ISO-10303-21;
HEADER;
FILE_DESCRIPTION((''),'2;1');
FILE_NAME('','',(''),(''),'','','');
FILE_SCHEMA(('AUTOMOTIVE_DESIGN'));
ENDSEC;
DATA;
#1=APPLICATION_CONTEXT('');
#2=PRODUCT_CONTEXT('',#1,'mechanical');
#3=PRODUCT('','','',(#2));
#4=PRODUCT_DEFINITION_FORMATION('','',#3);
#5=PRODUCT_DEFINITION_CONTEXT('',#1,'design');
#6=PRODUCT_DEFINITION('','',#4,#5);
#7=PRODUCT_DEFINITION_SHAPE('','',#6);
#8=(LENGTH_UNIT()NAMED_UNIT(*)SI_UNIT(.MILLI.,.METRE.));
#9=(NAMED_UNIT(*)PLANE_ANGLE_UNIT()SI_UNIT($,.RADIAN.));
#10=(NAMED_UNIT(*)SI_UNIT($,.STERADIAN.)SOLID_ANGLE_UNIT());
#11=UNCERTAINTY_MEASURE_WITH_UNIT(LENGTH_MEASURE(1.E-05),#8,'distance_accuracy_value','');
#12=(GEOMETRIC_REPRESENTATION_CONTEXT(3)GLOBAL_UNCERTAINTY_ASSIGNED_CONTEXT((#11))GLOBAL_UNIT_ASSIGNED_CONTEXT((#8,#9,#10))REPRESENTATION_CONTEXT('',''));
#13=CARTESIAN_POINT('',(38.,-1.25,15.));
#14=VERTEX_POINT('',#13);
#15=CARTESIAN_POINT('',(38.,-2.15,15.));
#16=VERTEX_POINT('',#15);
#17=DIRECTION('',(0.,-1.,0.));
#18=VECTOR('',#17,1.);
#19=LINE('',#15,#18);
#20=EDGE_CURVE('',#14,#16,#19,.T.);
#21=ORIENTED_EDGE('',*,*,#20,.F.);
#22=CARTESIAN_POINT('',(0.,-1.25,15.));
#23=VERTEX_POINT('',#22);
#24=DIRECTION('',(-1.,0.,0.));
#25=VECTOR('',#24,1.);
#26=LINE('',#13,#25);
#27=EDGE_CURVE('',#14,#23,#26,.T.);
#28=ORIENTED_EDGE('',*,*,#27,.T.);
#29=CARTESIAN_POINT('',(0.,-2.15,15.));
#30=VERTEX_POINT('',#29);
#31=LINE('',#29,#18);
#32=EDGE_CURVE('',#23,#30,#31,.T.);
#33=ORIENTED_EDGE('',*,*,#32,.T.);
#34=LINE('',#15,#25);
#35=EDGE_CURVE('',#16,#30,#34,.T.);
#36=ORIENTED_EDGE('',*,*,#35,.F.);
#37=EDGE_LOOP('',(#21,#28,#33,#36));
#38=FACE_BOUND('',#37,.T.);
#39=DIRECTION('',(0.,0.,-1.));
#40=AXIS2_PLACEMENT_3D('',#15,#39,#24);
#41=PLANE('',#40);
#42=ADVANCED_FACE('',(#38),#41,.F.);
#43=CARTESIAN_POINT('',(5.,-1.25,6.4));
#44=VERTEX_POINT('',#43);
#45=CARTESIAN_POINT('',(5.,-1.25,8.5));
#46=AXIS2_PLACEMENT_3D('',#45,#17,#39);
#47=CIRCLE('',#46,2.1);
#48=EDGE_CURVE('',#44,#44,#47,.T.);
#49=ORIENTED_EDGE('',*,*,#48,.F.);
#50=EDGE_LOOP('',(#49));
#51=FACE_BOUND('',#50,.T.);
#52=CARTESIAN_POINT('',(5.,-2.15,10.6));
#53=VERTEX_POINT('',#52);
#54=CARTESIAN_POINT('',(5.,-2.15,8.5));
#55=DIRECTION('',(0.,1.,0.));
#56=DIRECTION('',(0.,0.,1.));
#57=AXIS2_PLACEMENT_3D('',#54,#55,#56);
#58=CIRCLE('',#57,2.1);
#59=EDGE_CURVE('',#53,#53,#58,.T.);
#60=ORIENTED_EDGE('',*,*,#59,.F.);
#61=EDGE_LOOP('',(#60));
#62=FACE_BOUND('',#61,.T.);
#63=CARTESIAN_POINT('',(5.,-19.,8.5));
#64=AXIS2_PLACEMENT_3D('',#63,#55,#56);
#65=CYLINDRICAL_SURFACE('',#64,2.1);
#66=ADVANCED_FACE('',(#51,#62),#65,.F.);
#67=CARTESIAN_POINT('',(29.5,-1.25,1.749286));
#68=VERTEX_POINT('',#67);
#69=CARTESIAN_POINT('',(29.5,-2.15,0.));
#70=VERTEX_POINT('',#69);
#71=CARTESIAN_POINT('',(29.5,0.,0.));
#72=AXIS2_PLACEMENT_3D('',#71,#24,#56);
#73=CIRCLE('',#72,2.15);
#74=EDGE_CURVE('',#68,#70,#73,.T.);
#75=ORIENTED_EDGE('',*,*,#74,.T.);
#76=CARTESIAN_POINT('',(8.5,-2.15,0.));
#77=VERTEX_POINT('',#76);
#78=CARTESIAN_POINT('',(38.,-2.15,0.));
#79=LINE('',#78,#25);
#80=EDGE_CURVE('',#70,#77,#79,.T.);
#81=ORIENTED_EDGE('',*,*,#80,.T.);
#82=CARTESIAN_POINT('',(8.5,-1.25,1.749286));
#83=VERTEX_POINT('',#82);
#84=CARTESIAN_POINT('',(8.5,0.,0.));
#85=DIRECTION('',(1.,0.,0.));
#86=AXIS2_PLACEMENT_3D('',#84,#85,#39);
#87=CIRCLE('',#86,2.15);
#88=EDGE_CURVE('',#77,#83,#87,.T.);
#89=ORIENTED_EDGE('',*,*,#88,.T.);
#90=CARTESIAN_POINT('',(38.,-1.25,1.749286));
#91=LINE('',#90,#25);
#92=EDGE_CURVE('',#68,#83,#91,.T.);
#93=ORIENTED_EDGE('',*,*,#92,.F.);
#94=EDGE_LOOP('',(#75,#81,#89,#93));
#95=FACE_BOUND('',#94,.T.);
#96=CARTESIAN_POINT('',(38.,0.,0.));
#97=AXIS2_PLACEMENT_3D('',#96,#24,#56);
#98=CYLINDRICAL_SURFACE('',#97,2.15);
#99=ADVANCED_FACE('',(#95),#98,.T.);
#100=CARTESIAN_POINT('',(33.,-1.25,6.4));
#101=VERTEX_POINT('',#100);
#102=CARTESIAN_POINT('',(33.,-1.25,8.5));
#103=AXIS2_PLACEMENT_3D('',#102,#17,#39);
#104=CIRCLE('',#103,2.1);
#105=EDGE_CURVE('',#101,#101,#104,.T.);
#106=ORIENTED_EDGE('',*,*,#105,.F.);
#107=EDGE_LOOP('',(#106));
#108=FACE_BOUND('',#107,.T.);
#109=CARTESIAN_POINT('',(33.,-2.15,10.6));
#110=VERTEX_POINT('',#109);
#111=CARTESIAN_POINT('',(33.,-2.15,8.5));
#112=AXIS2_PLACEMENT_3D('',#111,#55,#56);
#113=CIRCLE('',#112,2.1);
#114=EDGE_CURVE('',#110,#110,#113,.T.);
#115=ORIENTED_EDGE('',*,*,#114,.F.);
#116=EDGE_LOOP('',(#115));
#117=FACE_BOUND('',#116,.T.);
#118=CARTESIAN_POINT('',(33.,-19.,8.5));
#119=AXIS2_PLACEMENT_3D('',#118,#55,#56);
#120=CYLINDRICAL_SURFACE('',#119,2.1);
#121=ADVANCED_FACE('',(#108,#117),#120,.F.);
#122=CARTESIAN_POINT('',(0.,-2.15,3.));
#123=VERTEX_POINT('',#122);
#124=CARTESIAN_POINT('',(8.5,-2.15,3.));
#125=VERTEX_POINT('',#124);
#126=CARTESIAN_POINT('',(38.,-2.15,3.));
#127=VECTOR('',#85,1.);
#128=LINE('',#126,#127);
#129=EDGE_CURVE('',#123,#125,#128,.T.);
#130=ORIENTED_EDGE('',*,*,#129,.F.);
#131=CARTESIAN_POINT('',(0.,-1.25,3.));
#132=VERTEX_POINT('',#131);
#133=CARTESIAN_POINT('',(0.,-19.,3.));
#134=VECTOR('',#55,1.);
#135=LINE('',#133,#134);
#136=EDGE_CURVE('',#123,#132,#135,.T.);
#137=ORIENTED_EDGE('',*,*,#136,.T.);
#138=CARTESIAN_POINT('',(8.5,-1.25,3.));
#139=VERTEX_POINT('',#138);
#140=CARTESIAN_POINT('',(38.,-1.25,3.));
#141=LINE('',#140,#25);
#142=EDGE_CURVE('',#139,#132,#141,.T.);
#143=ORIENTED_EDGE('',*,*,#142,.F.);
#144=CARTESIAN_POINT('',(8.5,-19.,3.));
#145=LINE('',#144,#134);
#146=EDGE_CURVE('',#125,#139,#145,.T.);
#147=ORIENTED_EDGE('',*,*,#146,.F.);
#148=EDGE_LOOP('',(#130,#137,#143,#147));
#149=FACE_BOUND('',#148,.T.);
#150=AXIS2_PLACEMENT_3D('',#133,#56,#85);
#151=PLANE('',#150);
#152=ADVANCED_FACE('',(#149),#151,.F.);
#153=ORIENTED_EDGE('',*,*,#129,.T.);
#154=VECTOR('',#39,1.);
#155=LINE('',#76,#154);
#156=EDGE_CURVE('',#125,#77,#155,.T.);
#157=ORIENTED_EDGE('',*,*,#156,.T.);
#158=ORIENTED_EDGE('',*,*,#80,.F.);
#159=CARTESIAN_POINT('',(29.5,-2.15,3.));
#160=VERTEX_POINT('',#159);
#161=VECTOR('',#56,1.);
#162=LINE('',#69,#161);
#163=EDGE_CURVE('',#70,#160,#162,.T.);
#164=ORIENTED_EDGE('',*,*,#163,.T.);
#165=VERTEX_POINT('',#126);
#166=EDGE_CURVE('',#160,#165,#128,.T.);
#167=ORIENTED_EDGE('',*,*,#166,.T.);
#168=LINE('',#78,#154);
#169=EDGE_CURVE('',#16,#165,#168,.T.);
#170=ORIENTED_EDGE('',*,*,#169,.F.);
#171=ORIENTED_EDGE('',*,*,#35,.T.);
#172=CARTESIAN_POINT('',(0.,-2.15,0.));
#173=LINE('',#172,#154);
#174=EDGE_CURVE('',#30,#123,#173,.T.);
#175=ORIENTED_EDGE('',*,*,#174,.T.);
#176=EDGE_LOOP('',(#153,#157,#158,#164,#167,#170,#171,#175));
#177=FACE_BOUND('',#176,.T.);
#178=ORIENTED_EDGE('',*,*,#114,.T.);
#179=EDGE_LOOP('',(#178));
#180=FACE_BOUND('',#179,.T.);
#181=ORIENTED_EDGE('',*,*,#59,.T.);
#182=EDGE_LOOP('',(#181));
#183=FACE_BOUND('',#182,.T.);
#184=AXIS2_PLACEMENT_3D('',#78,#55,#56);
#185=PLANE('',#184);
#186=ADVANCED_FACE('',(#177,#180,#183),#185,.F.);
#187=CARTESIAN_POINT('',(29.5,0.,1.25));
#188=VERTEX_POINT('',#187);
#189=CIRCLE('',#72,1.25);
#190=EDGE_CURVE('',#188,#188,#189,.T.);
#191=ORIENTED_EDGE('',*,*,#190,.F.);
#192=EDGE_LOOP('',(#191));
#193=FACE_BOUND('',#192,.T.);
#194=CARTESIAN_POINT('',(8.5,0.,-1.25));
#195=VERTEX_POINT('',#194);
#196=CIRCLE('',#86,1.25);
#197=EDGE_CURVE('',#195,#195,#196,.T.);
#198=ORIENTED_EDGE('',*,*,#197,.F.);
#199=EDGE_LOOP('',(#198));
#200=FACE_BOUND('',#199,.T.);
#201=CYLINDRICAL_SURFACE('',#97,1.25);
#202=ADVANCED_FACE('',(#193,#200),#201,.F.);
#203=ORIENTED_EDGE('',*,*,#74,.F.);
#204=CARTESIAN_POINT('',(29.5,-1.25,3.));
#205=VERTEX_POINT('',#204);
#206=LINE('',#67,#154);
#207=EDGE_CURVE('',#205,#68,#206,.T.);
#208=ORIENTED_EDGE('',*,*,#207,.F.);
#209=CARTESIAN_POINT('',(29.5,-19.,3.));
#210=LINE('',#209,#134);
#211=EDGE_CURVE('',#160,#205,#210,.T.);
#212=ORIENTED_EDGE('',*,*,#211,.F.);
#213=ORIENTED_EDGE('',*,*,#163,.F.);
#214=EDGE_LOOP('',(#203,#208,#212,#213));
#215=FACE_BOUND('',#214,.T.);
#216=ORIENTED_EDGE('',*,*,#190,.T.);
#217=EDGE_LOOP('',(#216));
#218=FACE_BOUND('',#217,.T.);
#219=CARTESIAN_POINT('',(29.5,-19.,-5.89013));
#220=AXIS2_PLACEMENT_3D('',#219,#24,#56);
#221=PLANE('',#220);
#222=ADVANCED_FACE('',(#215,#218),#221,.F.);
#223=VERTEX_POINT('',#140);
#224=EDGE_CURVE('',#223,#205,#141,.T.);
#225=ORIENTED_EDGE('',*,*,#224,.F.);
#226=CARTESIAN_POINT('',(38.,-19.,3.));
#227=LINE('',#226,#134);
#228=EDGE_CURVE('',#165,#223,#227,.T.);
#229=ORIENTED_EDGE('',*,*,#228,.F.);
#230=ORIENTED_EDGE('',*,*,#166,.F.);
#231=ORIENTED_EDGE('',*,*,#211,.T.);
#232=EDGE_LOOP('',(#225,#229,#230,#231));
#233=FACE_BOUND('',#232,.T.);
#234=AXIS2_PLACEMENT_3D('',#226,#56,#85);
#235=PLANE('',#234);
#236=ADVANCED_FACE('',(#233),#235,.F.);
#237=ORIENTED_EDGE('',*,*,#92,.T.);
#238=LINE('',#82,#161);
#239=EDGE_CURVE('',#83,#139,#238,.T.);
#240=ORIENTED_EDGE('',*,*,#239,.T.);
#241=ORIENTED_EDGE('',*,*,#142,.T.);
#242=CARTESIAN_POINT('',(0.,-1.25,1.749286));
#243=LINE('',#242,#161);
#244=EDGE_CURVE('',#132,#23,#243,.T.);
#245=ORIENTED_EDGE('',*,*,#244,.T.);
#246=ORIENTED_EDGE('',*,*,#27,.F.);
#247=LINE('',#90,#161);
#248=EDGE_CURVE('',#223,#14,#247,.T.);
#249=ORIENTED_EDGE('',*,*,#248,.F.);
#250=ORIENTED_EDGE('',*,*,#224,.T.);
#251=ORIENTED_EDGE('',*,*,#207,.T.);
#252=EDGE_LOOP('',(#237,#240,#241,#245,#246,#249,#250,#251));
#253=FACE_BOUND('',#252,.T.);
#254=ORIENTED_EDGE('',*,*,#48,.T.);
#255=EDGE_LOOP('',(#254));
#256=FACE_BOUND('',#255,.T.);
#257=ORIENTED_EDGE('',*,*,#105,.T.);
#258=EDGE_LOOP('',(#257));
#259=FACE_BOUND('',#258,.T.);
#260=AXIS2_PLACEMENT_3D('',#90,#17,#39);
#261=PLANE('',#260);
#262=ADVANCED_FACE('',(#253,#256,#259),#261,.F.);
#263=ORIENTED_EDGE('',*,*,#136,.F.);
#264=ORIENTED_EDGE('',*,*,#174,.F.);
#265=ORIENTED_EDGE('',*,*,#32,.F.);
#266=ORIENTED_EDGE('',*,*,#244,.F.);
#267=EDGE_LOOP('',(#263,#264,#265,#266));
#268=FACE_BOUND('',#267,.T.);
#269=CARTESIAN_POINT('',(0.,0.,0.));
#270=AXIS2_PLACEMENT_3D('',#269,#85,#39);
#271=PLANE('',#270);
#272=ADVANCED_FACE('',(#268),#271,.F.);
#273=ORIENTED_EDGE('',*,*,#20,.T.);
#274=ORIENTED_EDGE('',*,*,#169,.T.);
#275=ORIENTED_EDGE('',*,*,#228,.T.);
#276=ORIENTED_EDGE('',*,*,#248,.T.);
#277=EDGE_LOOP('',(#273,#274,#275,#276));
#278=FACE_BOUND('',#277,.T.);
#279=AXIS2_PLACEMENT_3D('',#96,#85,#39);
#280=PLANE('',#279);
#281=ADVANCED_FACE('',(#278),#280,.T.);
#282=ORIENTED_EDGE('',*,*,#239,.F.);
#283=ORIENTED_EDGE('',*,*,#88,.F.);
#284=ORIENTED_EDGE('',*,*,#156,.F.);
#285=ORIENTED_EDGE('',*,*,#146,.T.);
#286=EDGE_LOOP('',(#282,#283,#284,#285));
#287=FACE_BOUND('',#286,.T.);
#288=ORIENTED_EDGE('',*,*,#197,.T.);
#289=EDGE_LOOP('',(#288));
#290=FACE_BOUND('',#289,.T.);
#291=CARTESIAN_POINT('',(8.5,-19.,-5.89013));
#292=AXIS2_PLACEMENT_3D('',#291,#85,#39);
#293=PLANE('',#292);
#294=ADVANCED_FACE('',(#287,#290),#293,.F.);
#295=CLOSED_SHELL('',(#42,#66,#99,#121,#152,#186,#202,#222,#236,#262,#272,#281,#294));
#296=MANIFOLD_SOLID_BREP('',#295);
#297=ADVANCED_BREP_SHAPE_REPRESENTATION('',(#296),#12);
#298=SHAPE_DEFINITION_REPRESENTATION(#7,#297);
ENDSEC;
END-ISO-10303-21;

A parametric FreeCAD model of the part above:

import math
import FreeCAD as App
import Part
import Sketcher

V = App.Vector


def add_polygon(sketch, points):
    """Adds a closed chain of lines whose ends are joined by coincident constraints."""
    first, n = sketch.GeometryCount, len(points)
    for a, b in zip(points, points[1:] + points[:1]):
        sketch.addGeometry(Part.LineSegment(App.Vector(*a, 0), App.Vector(*b, 0)), False)
    for i in range(n):
        sketch.addConstraint(Sketcher.Constraint("Coincident", first + i, 2, first + (i + 1) % n, 1))

doc = App.newDocument("Part")
body = doc.addObject("PartDesign::Body", "Body")

# Sketch on YZ plane
sketch1 = body.newObject("Sketcher::SketchObject", "Sketch")
sketch1.AttachmentSupport = (doc.getObject("YZ_Plane"), [""])
sketch1.MapMode = "FlatFace"
sketch1.addGeometry([
    Part.LineSegment(V(-2.1, 15, 0), V(-2.1, 0, 0)),  # 0
    Part.ArcOfCircle(Part.Circle(V(0, 0, 0), V(0, 0, 1), 2.1), math.radians(180), math.radians(486)),  # 1
    Part.LineSegment(V(-1.2, 1.7, 0), V(-1.2, 15, 0)),  # 2
    Part.LineSegment(V(-1.2, 15, 0), V(-2.1, 15, 0)),  # 3
    Part.Circle(V(0, 0, 0), V(0, 0, 1), 1.2),  # 4
], False)
sketch1.addConstraint([
    Sketcher.Constraint("Tangent", 0, 2, 1, 1),
    Sketcher.Constraint("Coincident", 1, 2, 2, 1),
    Sketcher.Constraint("Coincident", 2, 2, 3, 1),
    Sketcher.Constraint("Coincident", 3, 2, 0, 1),
    Sketcher.Constraint("Vertical", 0),
    Sketcher.Constraint("Vertical", 2),
    Sketcher.Constraint("Horizontal", 3),
    Sketcher.Constraint("Coincident", 1, 3, -1, 1),
    Sketcher.Constraint("Coincident", 4, 3, -1, 1),
    Sketcher.Constraint("Diameter", 4, 2.5),
    Sketcher.Constraint("DistanceY", 0, 2, 0, 1, 15.0),
    Sketcher.Constraint("Radius", 1, 2.15),
    Sketcher.Constraint("DistanceX", 3, 2, 3, 1, 0.9),
])
pad1 = body.newObject("PartDesign::Pad", "Pad")
pad1.Profile = sketch1
pad1.Length = 38

# Sketch on XZ plane
sketch2 = body.newObject("Sketcher::SketchObject", "Sketch001")
sketch2.AttachmentSupport = (doc.getObject("XZ_Plane"), [""])
sketch2.MapMode = "FlatFace"
sketch2.addGeometry(Part.Circle(V(33, 8.5, 0), V(0, 0, 1), 2.1), False)  # 0
sketch2.addGeometry(Part.Circle(V(5, 8.5, 0), V(0, 0, 1), 2.1), False)  # 1
add_polygon(sketch2, [(29.5, -5.9), (29.5, 3), (38, 3), (38, -5.9)])  # lines 2-5
add_polygon(sketch2, [(0, -5.9), (0, 3), (8.5, 3), (8.5, -5.9)])  # lines 6-9
sketch2.addConstraint([
    Sketcher.Constraint("Vertical", 2),
    Sketcher.Constraint("Horizontal", 3),
    Sketcher.Constraint("Vertical", 4),
    Sketcher.Constraint("Horizontal", 5),
    Sketcher.Constraint("Vertical", 6),
    Sketcher.Constraint("Horizontal", 7),
    Sketcher.Constraint("Vertical", 8),
    Sketcher.Constraint("Horizontal", 9),
    Sketcher.Constraint("Equal", 0, 1),
    Sketcher.Constraint("PointOnObject", 6, 2, -2),
    Sketcher.Constraint("Horizontal", 0, 3, 1, 3),
    Sketcher.Constraint("Horizontal", 3, 2, 6, 2),
    Sketcher.Constraint("Horizontal", 5, 2, 8, 2),
    Sketcher.Constraint("Equal", 5, 7),
    Sketcher.Constraint("Diameter", 0, 4.2),
    Sketcher.Constraint("DistanceX", 3, 1, 3, 2, 8.5),
    Sketcher.Constraint("DistanceX", -1, 1, 0, 3, 33.0),
    Sketcher.Constraint("DistanceX", -1, 1, 1, 3, 5.0),
    Sketcher.Constraint("DistanceY", -1, 1, 2, 2, 3.0),
    Sketcher.Constraint("DistanceX", -1, 1, 3, 2, 38.0),
    Sketcher.Constraint("DistanceY", -1, 1, 0, 3, 8.5),
    Sketcher.Constraint("DistanceY", 2, 1, 2, 2, 8.89013),
])
pocket1 = body.newObject("PartDesign::Pocket", "Pocket")
pocket1.Profile = sketch2
pocket1.Length = 38
pocket1.Midplane = True

doc.recompute()
